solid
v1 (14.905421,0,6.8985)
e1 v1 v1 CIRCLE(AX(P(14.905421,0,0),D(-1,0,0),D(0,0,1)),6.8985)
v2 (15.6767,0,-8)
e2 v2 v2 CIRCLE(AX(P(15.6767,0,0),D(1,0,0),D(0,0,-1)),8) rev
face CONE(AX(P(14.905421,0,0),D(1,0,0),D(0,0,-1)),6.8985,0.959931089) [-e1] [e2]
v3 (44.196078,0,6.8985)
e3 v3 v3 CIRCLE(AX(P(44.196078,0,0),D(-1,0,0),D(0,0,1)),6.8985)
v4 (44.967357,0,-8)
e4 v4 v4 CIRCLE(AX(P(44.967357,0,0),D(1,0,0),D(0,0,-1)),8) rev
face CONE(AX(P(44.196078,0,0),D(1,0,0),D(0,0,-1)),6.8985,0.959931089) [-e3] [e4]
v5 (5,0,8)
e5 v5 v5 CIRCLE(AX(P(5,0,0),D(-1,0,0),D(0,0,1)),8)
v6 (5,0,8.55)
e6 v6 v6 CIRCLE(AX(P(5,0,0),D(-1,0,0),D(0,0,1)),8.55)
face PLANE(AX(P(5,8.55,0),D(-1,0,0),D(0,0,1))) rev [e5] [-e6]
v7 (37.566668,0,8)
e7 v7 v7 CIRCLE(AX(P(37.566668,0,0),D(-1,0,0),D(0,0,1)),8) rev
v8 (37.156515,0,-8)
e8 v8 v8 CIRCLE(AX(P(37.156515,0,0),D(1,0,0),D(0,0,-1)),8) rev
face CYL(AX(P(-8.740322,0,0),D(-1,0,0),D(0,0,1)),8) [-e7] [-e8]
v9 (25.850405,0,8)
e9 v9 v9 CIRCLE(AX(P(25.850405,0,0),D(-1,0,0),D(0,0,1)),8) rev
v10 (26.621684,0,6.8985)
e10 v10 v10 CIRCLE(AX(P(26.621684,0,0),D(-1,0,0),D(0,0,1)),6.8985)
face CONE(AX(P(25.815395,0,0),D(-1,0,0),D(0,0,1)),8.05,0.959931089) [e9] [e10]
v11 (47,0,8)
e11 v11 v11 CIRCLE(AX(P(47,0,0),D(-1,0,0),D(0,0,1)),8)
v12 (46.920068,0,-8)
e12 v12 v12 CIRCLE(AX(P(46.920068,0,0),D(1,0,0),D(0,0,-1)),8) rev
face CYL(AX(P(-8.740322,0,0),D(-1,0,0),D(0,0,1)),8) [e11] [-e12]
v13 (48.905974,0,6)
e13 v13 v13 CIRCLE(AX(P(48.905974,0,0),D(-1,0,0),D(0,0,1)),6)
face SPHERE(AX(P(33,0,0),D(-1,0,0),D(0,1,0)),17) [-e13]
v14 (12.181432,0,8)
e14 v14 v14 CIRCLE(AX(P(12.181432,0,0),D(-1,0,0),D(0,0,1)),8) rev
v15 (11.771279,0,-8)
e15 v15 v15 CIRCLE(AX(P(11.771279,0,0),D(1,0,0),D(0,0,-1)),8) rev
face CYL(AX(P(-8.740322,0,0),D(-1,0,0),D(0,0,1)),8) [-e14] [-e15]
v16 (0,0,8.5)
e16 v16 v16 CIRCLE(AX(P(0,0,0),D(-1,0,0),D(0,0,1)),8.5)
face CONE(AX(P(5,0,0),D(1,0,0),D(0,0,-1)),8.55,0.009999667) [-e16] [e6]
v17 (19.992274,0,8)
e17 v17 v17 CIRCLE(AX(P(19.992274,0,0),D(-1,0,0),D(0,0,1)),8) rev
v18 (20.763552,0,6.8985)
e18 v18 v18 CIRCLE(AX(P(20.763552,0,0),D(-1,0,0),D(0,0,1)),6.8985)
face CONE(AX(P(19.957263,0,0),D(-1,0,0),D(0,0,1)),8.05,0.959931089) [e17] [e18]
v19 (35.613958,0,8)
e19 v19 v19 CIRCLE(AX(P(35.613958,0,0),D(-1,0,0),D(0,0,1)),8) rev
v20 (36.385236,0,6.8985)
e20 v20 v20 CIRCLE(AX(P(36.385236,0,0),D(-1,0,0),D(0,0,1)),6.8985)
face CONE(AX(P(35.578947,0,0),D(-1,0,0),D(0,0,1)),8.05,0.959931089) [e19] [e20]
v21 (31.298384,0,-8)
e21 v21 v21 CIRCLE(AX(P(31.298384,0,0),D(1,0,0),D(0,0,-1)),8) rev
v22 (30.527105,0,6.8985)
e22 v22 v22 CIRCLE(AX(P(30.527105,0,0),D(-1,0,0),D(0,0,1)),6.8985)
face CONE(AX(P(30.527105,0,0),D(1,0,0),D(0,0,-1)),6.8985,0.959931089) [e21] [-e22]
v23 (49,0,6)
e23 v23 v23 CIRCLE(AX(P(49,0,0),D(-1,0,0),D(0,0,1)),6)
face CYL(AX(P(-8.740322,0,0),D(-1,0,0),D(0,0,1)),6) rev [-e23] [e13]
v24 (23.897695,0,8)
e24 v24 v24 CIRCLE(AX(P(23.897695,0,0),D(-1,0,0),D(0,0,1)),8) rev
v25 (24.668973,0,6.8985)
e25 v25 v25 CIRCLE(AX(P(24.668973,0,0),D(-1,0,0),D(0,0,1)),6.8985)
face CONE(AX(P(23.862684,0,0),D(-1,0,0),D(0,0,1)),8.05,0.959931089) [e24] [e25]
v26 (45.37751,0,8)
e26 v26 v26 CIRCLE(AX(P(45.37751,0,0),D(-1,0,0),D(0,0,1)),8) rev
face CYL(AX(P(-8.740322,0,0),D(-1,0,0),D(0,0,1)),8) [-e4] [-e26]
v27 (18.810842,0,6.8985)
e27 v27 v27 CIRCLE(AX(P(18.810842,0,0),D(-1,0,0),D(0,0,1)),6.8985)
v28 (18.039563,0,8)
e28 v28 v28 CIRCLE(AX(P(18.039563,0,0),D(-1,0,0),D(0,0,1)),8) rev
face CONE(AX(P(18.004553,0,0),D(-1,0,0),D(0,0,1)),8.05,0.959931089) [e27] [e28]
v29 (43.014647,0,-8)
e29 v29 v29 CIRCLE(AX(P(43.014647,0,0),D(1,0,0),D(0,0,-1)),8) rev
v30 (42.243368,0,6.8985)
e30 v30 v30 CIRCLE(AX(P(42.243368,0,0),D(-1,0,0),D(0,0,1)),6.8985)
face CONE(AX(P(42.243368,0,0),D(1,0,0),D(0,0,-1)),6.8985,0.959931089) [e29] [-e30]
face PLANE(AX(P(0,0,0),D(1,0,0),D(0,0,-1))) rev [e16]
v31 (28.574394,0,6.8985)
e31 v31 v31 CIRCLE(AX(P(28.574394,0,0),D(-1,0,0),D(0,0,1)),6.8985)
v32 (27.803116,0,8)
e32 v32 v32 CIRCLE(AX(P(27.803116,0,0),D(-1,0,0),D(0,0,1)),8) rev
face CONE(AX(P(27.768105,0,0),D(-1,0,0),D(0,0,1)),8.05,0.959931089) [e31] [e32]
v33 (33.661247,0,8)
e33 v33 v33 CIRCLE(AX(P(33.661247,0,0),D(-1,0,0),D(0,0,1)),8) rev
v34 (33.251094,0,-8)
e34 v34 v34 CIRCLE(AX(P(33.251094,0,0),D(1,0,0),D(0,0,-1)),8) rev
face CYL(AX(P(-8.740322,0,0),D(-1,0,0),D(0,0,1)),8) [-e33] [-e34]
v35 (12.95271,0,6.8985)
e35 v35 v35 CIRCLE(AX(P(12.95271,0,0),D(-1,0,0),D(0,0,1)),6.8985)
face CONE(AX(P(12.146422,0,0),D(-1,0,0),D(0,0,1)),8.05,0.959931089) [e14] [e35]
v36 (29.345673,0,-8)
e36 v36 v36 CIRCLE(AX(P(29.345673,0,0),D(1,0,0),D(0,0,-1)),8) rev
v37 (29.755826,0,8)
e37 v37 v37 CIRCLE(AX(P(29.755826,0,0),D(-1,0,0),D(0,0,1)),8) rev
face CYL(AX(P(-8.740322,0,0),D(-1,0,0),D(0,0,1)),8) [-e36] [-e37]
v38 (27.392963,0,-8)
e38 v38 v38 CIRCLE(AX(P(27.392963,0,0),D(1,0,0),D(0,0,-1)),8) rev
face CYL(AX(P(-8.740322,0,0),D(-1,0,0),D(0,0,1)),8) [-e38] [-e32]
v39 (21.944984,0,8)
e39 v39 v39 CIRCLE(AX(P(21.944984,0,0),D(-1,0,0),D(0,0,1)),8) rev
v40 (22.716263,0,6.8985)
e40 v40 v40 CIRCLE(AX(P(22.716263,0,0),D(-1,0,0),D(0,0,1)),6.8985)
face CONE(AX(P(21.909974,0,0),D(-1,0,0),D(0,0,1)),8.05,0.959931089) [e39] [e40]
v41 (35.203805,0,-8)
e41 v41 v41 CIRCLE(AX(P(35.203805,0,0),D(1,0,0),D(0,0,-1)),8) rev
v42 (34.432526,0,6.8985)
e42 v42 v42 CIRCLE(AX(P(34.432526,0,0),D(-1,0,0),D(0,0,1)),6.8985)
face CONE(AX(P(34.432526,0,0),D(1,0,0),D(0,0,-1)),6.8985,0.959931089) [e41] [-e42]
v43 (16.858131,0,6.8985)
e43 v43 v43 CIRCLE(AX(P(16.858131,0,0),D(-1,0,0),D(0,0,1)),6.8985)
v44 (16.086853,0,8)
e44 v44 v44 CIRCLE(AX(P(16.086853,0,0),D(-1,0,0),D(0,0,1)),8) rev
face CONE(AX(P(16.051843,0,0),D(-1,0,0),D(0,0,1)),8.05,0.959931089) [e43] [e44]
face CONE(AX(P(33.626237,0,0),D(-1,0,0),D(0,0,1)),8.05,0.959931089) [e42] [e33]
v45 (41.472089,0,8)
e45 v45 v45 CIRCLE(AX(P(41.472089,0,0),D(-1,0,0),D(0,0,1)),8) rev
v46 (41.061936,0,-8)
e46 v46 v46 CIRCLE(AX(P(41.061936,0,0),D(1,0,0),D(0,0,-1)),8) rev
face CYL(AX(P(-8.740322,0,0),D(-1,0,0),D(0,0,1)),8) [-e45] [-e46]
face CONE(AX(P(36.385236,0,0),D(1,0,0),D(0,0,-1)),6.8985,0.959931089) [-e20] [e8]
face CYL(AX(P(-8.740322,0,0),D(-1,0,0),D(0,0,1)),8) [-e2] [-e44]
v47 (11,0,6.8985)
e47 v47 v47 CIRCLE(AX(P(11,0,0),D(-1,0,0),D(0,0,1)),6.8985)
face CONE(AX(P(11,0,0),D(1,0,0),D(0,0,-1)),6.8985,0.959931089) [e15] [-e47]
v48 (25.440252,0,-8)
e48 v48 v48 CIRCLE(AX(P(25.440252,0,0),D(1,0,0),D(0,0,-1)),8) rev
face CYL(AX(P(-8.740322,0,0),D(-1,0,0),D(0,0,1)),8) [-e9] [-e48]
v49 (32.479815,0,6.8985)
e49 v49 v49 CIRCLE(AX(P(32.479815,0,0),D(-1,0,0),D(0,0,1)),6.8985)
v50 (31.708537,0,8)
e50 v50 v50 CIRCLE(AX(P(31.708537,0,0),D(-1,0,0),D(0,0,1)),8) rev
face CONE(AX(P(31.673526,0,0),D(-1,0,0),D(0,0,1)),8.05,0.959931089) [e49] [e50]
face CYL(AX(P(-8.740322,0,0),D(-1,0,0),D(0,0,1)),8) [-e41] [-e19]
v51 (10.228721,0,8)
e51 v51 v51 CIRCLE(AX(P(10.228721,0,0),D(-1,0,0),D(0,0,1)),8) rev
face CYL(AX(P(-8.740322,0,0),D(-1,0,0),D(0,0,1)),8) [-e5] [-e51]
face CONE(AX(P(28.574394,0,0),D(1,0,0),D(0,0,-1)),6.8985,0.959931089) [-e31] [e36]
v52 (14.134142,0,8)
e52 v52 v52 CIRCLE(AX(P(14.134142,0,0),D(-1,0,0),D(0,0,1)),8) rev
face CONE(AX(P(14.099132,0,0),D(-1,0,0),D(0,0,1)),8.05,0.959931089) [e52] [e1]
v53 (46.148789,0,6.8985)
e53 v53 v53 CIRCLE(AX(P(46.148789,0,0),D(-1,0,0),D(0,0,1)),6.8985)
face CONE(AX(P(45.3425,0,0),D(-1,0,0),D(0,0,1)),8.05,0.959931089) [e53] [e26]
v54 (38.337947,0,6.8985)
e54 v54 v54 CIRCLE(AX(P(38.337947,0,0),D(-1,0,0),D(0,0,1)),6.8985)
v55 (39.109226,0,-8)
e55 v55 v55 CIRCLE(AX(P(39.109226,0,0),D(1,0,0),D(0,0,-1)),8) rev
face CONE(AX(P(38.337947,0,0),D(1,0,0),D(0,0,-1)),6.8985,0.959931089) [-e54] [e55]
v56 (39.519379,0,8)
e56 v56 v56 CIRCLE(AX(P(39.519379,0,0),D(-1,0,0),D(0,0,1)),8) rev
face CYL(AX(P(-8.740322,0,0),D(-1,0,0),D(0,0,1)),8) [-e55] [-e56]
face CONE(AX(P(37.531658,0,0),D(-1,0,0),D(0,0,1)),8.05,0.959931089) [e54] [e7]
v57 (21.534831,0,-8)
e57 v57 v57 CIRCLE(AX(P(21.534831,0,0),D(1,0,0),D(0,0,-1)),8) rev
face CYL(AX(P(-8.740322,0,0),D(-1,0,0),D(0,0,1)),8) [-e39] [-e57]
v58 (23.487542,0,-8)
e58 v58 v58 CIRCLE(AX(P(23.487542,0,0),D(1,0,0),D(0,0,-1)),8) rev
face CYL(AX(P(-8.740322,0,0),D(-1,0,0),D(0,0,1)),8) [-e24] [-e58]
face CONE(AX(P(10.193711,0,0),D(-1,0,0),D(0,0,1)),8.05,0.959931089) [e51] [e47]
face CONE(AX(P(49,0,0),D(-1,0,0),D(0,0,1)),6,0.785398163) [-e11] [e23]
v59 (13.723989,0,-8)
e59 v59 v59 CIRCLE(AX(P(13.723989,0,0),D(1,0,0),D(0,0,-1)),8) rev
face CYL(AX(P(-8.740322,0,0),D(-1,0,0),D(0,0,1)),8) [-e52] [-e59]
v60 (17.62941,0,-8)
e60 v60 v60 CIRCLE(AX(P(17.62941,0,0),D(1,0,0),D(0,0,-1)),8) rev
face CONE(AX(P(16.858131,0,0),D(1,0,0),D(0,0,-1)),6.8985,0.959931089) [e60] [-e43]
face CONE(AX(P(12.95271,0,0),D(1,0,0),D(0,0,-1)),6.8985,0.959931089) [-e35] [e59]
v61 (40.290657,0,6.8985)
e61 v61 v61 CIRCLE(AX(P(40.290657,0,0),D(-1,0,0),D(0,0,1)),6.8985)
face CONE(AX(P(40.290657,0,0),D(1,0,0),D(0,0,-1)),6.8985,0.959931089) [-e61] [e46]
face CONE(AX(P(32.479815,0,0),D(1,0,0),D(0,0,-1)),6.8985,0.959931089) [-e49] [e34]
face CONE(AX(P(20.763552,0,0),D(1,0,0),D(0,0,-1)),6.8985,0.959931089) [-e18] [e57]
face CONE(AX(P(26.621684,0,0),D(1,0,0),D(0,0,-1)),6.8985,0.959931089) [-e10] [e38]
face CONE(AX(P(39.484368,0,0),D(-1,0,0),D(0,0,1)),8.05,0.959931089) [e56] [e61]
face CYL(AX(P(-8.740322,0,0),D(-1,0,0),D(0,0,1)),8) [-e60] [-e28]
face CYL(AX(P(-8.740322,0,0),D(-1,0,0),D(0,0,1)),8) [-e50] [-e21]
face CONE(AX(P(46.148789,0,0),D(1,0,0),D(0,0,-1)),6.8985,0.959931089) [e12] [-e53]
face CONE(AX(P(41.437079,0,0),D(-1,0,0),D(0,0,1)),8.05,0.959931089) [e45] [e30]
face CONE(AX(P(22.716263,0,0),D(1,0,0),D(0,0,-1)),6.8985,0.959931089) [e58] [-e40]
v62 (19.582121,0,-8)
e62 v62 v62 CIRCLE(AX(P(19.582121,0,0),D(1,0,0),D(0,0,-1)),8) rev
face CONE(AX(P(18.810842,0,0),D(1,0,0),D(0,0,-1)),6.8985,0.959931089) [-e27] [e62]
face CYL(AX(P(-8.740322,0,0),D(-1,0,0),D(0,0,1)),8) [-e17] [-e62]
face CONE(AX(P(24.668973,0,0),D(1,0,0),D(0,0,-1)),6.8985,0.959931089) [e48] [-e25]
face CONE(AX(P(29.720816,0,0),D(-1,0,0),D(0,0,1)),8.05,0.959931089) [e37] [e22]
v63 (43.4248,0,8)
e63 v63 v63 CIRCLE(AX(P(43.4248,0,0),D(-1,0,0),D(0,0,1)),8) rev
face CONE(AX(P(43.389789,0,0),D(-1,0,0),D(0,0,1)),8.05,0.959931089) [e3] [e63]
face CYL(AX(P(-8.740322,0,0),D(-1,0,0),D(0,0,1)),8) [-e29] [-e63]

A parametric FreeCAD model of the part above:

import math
import FreeCAD as App
import Part
import Sketcher

V = App.Vector
Q = App.Units.Quantity


def add_polygon(sketch, points):
    """Adds a closed chain of lines whose ends are joined by coincident constraints."""
    first, n = sketch.GeometryCount, len(points)
    for a, b in zip(points, points[1:] + points[:1]):
        sketch.addGeometry(Part.LineSegment(App.Vector(*a, 0), App.Vector(*b, 0)), False)
    for i in range(n):
        sketch.addConstraint(Sketcher.Constraint("Coincident", first + i, 2, first + (i + 1) % n, 1))

doc = App.newDocument("Part")
params = doc.addObject("Spreadsheet::Sheet", "Params")
for row, (alias, value) in enumerate([
    ("sketch1_radius", "17 mm"),
    ("sketch1_width", "50 mm"),
    ("sketch1_width2", "42 mm"),
    ("sketch1_height", "8.5 mm"),
    ("sketch1_height2", "0.55 mm"),
    ("revolution_angle", "360 deg"),
    ("groove_angle", "360 deg"),
    ("linearpattern_pitch", "1.95271 mm"),
], start=1):
    params.set(f"A{row}", alias)
    params.set(f"B{row}", "=" + value)
    params.setAlias(f"B{row}", alias)

body = doc.addObject("PartDesign::Body", "Body")

# Sketch on XY plane
sketch1 = body.newObject("Sketcher::SketchObject", "Sketch")
sketch1.AttachmentSupport = (doc.getObject("XY_Plane"), [""])
sketch1.MapMode = "FlatFace"
sketch1.addGeometry([
    Part.LineSegment(V(0, 8.5, 0), V(0, 0, 0)),  # 0
    Part.LineSegment(V(0, 0, 0), V(50, 0, 0)),  # 1
    Part.ArcOfCircle(Part.Circle(V(33, 0, 0), V(0, 0, 1), 17), math.radians(0), math.radians(21)),  # 2
    Part.LineSegment(V(48.91, 6, 0), V(49, 6, 0)),  # 3
    Part.LineSegment(V(49, 6, 0), V(47, 8, 0)),  # 4
    Part.LineSegment(V(47, 8, 0), V(5, 8, 0)),  # 5
    Part.LineSegment(V(5, 8, 0), V(5, 8.55, 0)),  # 6
    Part.LineSegment(V(5, 8.55, 0), V(0, 8.5, 0)),  # 7
], False)
sketch1.addConstraint([
    Sketcher.Constraint("Coincident", 0, 2, 1, 1),
    Sketcher.Constraint("Coincident", 1, 2, 2, 1),
    Sketcher.Constraint("Coincident", 2, 2, 3, 1),
    Sketcher.Constraint("Coincident", 3, 2, 4, 1),
    Sketcher.Constraint("Coincident", 4, 2, 5, 1),
    Sketcher.Constraint("Coincident", 5, 2, 6, 1),
    Sketcher.Constraint("Coincident", 6, 2, 7, 1),
    Sketcher.Constraint("Coincident", 7, 2, 0, 1),
    Sketcher.Constraint("Vertical", 0),
    Sketcher.Constraint("Horizontal", 1),
    Sketcher.Constraint("Horizontal", 3),
    Sketcher.Constraint("Horizontal", 5),
    Sketcher.Constraint("Vertical", 6),
    Sketcher.Constraint("Coincident", 0, 2, -1, 1),
    Sketcher.Constraint("PointOnObject", 2, 3, -1),
    Sketcher.Constraint("Radius", 2, Q("17 mm")),
    Sketcher.Constraint("DistanceX", 1, 1, 1, 2, Q("50 mm")),
    Sketcher.Constraint("DistanceX", 5, 2, 5, 1, Q("42 mm")),
    Sketcher.Constraint("Angle", 4, Q("135 deg")),
    Sketcher.Constraint("DistanceY", 0, 2, 0, 1, Q("8.5 mm")),
    Sketcher.Constraint("DistanceY", -1, 1, 2, 2, Q("6 mm")),
    Sketcher.Constraint("DistanceX", -1, 1, 3, 2, Q("49 mm")),
    Sketcher.Constraint("DistanceX", -1, 1, 4, 2, Q("47 mm")),
    Sketcher.Constraint("DistanceY", 6, 1, 6, 2, Q("0.55 mm")),
])
sketch1.setExpression("Constraints[15]", "Params.sketch1_radius")
sketch1.setExpression("Constraints[16]", "Params.sketch1_width")
sketch1.setExpression("Constraints[17]", "Params.sketch1_width2")
sketch1.setExpression("Constraints[19]", "Params.sketch1_height")
sketch1.setExpression("Constraints[23]", "Params.sketch1_height2")
revolution = body.newObject("PartDesign::Revolution", "Revolution")
revolution.Profile = sketch1
revolution.ReferenceAxis = (sketch1, ["H_Axis"])
revolution.setExpression("Angle", "Params.revolution_angle")

# Sketch on XY plane
sketch2 = body.newObject("Sketcher::SketchObject", "Sketch001")
sketch2.AttachmentSupport = (doc.getObject("XY_Plane"), [""])
sketch2.MapMode = "FlatFace"
add_polygon(sketch2, [(10.2, 8.1), (11, 6.9), (11.8, 8.1)])  # lines 0-2
sketch2.addConstraint([
    Sketcher.Constraint("Horizontal", 2),
    Sketcher.Constraint("Equal", 0, 1),
    Sketcher.Constraint("Angle", 0, Q("-55 deg")),
    Sketcher.Constraint("DistanceX", -1, 1, 0, 2, Q("11 mm")),
    Sketcher.Constraint("DistanceY", -1, 1, 1, 2, Q("8.05 mm")),
    Sketcher.Constraint("DistanceY", -1, 1, 0, 2, Q("6.8985 mm")),
])
groove = body.newObject("PartDesign::Groove", "Groove")
groove.Profile = sketch2
groove.ReferenceAxis = (sketch2, ["H_Axis"])
groove.setExpression("Angle", "Params.groove_angle")
doc.recompute()

linearpattern = body.newObject("PartDesign::LinearPattern", "LinearPattern")
linearpattern.Originals = [groove]
linearpattern.Direction = (doc.getObject("X_Axis"), [""])
linearpattern.Mode = "offset"
linearpattern.setExpression("Offset", "Params.linearpattern_pitch")
linearpattern.Occurrences = 19
body.Tip = linearpattern

doc.recompute()
